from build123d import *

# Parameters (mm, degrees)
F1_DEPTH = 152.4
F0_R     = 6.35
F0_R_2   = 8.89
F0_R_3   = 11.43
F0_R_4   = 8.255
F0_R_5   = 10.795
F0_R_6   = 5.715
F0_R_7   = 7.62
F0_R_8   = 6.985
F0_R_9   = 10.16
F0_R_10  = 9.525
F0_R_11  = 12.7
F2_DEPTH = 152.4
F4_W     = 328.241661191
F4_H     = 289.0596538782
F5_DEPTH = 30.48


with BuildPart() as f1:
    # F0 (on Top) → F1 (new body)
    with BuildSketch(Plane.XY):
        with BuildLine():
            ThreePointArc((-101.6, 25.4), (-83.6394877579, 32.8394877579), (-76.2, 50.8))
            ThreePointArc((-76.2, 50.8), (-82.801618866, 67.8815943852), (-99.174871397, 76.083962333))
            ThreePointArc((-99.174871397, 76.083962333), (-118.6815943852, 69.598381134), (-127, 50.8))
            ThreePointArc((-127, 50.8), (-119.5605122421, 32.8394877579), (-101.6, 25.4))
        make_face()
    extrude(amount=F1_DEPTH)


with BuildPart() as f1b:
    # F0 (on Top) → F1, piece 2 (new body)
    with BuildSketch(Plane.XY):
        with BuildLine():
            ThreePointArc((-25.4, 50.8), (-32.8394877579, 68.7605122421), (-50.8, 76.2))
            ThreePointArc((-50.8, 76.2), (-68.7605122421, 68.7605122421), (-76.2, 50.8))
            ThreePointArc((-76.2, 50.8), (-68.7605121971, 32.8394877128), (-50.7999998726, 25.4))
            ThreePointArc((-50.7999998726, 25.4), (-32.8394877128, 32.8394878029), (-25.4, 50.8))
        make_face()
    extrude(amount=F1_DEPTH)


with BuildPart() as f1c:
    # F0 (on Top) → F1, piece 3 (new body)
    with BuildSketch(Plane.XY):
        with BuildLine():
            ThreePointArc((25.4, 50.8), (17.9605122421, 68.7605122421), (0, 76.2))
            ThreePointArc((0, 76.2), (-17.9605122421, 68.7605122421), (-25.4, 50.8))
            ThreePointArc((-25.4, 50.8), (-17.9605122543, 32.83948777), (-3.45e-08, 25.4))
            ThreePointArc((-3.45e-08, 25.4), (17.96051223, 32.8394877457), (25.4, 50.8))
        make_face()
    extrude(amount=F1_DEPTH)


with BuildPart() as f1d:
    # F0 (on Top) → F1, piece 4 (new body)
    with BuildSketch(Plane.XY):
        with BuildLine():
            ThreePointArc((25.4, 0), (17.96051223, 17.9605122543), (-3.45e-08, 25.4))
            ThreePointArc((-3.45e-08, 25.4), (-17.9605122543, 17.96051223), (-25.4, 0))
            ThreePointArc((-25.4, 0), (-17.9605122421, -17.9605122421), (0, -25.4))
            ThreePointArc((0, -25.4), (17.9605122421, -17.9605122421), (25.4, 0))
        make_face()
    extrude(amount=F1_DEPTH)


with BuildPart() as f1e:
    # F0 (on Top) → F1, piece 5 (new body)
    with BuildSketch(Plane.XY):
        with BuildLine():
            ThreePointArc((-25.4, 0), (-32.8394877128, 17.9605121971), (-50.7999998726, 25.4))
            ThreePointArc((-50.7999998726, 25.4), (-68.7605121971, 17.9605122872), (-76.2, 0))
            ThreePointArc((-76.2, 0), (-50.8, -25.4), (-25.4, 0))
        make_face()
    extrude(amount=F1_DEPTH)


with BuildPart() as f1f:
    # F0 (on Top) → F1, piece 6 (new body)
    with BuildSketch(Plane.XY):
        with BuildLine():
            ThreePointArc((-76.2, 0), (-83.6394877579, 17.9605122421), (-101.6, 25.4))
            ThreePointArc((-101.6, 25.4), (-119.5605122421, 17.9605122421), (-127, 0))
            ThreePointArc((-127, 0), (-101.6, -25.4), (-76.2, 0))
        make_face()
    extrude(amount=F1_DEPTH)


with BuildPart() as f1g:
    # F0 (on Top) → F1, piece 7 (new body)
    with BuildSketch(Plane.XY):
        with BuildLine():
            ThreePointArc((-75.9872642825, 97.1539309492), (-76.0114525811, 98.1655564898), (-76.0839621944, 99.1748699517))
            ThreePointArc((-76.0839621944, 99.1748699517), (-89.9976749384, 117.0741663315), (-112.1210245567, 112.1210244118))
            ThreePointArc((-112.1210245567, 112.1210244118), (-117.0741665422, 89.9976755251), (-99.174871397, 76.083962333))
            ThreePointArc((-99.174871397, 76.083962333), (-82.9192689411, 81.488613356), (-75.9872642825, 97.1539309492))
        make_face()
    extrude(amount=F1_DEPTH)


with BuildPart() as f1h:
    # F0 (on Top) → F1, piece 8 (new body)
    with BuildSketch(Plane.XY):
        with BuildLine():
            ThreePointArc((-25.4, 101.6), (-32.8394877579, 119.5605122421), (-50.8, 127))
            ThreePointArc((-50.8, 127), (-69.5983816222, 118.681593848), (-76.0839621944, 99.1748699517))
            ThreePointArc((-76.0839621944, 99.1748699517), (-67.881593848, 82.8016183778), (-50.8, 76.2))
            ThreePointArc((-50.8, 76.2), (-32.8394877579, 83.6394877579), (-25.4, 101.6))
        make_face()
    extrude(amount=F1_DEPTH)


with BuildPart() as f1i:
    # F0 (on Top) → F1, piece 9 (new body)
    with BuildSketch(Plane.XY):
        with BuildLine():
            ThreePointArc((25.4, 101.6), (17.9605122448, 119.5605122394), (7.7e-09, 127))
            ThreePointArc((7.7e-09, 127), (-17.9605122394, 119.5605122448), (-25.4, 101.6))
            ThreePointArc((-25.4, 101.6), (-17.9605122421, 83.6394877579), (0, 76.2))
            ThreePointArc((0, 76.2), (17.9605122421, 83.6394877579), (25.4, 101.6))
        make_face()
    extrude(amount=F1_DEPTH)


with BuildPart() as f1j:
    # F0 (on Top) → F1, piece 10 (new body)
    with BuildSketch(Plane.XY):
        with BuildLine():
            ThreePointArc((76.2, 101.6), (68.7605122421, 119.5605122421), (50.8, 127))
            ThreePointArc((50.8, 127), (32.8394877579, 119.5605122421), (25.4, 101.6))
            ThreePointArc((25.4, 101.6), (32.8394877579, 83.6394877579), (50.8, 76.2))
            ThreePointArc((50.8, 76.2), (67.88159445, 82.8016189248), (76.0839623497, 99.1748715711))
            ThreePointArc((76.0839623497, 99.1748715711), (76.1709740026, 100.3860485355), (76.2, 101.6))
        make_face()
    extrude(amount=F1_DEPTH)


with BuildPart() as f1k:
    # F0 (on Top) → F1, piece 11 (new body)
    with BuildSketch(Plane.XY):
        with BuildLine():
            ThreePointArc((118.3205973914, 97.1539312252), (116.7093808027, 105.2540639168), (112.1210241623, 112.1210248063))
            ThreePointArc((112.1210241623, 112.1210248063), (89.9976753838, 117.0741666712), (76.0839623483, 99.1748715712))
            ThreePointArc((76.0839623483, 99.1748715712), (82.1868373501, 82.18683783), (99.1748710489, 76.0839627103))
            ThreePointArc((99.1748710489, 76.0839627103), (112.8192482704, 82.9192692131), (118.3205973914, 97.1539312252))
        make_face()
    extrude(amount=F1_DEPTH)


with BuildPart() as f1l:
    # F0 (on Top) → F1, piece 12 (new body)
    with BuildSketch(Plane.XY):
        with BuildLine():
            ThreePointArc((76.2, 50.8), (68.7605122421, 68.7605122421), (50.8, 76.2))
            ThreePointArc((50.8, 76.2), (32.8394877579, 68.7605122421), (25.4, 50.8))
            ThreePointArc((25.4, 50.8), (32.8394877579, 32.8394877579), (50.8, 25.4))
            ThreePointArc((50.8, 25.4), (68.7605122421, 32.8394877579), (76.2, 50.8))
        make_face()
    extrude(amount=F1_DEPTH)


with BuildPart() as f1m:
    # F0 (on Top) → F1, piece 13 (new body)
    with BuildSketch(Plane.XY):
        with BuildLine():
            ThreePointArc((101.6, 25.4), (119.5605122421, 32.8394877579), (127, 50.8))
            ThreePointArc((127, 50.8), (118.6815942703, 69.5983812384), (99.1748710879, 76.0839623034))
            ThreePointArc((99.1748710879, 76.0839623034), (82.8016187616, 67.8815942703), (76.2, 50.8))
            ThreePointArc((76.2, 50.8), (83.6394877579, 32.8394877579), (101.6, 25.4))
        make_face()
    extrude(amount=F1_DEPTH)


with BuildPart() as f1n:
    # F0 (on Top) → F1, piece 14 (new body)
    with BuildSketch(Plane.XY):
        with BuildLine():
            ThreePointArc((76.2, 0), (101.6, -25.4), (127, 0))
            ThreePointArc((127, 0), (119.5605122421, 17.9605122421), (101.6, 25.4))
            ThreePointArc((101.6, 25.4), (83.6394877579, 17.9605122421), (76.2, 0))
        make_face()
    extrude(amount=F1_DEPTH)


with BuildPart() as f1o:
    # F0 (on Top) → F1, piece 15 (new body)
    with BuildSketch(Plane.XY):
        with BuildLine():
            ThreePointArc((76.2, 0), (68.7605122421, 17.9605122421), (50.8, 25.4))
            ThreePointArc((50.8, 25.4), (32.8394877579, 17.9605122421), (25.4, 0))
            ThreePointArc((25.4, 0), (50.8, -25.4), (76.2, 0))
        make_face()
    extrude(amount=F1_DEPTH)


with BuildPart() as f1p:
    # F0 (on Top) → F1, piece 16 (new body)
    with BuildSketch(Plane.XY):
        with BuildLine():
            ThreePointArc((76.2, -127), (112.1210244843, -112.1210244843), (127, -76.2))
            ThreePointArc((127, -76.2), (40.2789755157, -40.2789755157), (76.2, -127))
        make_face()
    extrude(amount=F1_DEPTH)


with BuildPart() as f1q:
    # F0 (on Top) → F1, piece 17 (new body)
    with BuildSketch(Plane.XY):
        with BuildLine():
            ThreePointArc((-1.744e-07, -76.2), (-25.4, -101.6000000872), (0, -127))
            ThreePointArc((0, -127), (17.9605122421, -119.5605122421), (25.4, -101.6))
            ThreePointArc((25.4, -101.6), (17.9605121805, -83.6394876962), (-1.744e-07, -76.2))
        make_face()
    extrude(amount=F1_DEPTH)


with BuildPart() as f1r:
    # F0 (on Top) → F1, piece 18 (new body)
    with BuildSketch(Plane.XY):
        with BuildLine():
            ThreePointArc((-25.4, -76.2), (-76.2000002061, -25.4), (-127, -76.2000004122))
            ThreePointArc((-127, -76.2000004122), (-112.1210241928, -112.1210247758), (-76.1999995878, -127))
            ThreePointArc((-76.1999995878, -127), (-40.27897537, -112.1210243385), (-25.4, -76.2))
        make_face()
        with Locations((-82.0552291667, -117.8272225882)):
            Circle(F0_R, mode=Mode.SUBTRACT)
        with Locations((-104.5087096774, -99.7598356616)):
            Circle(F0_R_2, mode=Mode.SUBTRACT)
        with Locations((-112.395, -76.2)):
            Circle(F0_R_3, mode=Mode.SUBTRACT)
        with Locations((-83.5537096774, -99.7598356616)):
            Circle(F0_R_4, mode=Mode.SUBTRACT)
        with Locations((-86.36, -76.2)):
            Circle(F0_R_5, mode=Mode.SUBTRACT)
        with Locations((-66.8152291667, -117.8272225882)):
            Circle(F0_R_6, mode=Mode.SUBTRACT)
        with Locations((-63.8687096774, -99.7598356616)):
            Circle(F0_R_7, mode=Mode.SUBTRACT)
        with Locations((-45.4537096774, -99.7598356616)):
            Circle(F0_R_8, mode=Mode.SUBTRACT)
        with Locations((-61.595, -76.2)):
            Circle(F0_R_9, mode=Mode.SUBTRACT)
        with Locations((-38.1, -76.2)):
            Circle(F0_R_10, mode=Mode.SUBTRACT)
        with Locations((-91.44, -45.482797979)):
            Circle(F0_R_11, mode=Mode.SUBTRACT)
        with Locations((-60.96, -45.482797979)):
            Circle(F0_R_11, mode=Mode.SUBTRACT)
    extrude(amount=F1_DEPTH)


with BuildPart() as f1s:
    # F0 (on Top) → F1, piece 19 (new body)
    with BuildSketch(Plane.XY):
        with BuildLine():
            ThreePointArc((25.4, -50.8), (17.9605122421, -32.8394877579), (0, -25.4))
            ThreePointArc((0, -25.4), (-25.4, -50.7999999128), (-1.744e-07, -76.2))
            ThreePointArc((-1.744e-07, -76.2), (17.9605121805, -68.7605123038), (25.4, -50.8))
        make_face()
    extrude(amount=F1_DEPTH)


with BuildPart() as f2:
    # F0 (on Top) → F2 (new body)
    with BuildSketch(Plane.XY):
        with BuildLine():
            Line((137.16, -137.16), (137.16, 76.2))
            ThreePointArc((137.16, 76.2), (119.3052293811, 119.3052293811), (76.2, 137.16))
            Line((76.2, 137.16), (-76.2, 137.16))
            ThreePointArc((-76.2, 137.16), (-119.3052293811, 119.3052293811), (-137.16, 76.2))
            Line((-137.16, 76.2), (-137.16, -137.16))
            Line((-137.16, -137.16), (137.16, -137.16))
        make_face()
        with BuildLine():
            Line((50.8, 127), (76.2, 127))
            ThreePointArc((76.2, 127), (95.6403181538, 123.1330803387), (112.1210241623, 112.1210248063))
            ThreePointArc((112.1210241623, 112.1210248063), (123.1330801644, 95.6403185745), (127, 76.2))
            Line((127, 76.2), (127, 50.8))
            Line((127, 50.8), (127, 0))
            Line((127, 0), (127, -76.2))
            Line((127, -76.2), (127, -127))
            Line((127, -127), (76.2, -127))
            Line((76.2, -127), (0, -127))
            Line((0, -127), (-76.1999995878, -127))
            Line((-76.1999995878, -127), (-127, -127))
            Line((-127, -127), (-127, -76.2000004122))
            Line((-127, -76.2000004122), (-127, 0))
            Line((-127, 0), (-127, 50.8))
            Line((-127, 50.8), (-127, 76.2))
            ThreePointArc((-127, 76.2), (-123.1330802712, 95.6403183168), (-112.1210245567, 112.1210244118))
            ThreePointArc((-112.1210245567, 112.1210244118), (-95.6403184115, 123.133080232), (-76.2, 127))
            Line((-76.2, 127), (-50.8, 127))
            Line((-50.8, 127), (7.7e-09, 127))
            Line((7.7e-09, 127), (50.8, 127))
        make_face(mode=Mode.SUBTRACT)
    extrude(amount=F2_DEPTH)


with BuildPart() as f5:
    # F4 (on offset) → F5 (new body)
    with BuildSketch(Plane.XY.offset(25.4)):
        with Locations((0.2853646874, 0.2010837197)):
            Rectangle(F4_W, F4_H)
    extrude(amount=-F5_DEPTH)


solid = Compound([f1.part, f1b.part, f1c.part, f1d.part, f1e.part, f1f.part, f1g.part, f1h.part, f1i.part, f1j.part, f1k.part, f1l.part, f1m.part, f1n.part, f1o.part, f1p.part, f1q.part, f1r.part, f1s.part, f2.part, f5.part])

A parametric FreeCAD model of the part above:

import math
import FreeCAD as App
import Part
import Sketcher
from FreeCAD import Vector
Q = App.Units.Quantity


def add_polygon(sketch, points):
    """Adds a closed chain of lines whose ends are joined by coincident constraints."""
    first, n = sketch.GeometryCount, len(points)
    for a, b in zip(points, points[1:] + points[:1]):
        sketch.addGeometry(Part.LineSegment(App.Vector(*a, 0), App.Vector(*b, 0)), False)
    for i in range(n):
        sketch.addConstraint(Sketcher.Constraint("Coincident", first + i, 2, first + (i + 1) % n, 1))

doc = App.newDocument("Part")
body = doc.addObject("PartDesign::Body", "Body")

# Sketch on XY plane
sketch1 = body.newObject("Sketcher::SketchObject", "Sketch")
sketch1.AttachmentSupport = (doc.getObject("XY_Plane"), [""])
sketch1.MapMode = "FlatFace"
sketch1.addGeometry(Part.ArcOfCircle(Part.Circle(Vector(-102, 51, 0), Vector(0, 0, 1), 25), math.radians(-90), math.radians(0)), False)
sketch1.addGeometry(Part.ArcOfCircle(Part.Circle(Vector(-102, 51, 0), Vector(0, 0, 1), 25), math.radians(0), math.radians(85)), False)
sketch1.addGeometry(Part.ArcOfCircle(Part.Circle(Vector(-102, 51, 0), Vector(0, 0, 1), 25), math.radians(85), math.radians(180)), False)
sketch1.addGeometry(Part.ArcOfCircle(Part.Circle(Vector(-102, 51, 0), Vector(0, 0, 1), 25), math.radians(180), math.radians(270)), False)
sketch1.addConstraint(Sketcher.Constraint("Tangent", 0, 2, 1, 1))
sketch1.addConstraint(Sketcher.Constraint("Tangent", 1, 2, 2, 1))
sketch1.addConstraint(Sketcher.Constraint("Tangent", 2, 2, 3, 1))
sketch1.addConstraint(Sketcher.Constraint("Tangent", 3, 2, 0, 1))
sketch1.addConstraint(Sketcher.Constraint("Equal", 0, 1))
sketch1.addConstraint(Sketcher.Constraint("Horizontal", 3, 3, 0, 2))
sketch1.addConstraint(Sketcher.Constraint("Horizontal", 0, 2, 2, 2))
sketch1.addConstraint(Sketcher.Constraint("Vertical", 2, 3, 3, 2))
sketch1.addConstraint(Sketcher.Constraint("Radius", 0, Q("1 in")))
sketch1.addConstraint(Sketcher.Constraint("DistanceX", 0, 3, -1, 1, Q("4 in")))
sketch1.addConstraint(Sketcher.Constraint("DistanceY", -1, 1, 0, 3, Q("2 in")))
sketch1.addConstraint(Sketcher.Constraint("DistanceX", 1, 2, -1, 1, 99.174871))
pad1 = body.newObject("PartDesign::Pad", "Pad")
pad1.Profile = sketch1
pad1.Length = Q("6 in")
body2 = doc.addObject("PartDesign::Body", "Body001")

# Sketch on XY plane
sketch2 = body2.newObject("Sketcher::SketchObject", "Sketch001")
sketch2.AttachmentSupport = (doc.getObject("XY_Plane001"), [""])
sketch2.MapMode = "FlatFace"
sketch2.addGeometry(Part.ArcOfCircle(Part.Circle(Vector(-51, 51, 0), Vector(0, 0, 1), 25), math.radians(0), math.radians(90)), False)
sketch2.addGeometry(Part.ArcOfCircle(Part.Circle(Vector(-51, 51, 0), Vector(0, 0, 1), 25), math.radians(90), math.radians(180)), False)
sketch2.addGeometry(Part.ArcOfCircle(Part.Circle(Vector(-51, 51, 0), Vector(0, 0, 1), 25), math.radians(180), math.radians(270)), False)
sketch2.addGeometry(Part.ArcOfCircle(Part.Circle(Vector(-51, 51, 0), Vector(0, 0, 1), 25), math.radians(-90), math.radians(0)), False)
sketch2.addConstraint(Sketcher.Constraint("Tangent", 0, 2, 1, 1))
sketch2.addConstraint(Sketcher.Constraint("Tangent", 1, 2, 2, 1))
sketch2.addConstraint(Sketcher.Constraint("Tangent", 2, 2, 3, 1))
sketch2.addConstraint(Sketcher.Constraint("Tangent", 3, 2, 0, 1))
sketch2.addConstraint(Sketcher.Constraint("Equal", 0, 1))
sketch2.addConstraint(Sketcher.Constraint("Horizontal", 3, 3, 1, 2))
sketch2.addConstraint(Sketcher.Constraint("Horizontal", 1, 2, 3, 2))
sketch2.addConstraint(Sketcher.Constraint("Vertical", 3, 3, 0, 2))
sketch2.addConstraint(Sketcher.Constraint("Vertical", 0, 2, 2, 2))
sketch2.addConstraint(Sketcher.Constraint("Radius", 0, Q("1 in")))
sketch2.addConstraint(Sketcher.Constraint("DistanceX", 0, 3, -1, 1, Q("2 in")))
sketch2.addConstraint(Sketcher.Constraint("DistanceY", -1, 1, 0, 3, Q("2 in")))
pad2 = body2.newObject("PartDesign::Pad", "Pad001")
pad2.Profile = sketch2
pad2.Length = Q("6 in")
body3 = doc.addObject("PartDesign::Body", "Body002")

# Sketch on XY plane
sketch3 = body3.newObject("Sketcher::SketchObject", "Sketch002")
sketch3.AttachmentSupport = (doc.getObject("XY_Plane002"), [""])
sketch3.MapMode = "FlatFace"
sketch3.addGeometry(Part.ArcOfCircle(Part.Circle(Vector(0, 51, 0), Vector(0, 0, 1), 25), math.radians(0), math.radians(90)), False)
sketch3.addGeometry(Part.ArcOfCircle(Part.Circle(Vector(0, 51, 0), Vector(0, 0, 1), 25), math.radians(90), math.radians(180)), False)
sketch3.addGeometry(Part.ArcOfCircle(Part.Circle(Vector(0, 51, 0), Vector(0, 0, 1), 25), math.radians(180), math.radians(270)), False)
sketch3.addGeometry(Part.ArcOfCircle(Part.Circle(Vector(0, 51, 0), Vector(0, 0, 1), 25), math.radians(-90), math.radians(0)), False)
sketch3.addConstraint(Sketcher.Constraint("Tangent", 0, 2, 1, 1))
sketch3.addConstraint(Sketcher.Constraint("Tangent", 1, 2, 2, 1))
sketch3.addConstraint(Sketcher.Constraint("Tangent", 2, 2, 3, 1))
sketch3.addConstraint(Sketcher.Constraint("Tangent", 3, 2, 0, 1))
sketch3.addConstraint(Sketcher.Constraint("Equal", 0, 1))
sketch3.addConstraint(Sketcher.Constraint("Symmetric", 1, 2, 3, 2, -2))
sketch3.addConstraint(Sketcher.Constraint("PointOnObject", 0, 2, -2))
sketch3.addConstraint(Sketcher.Constraint("PointOnObject", 2, 2, -2))
sketch3.addConstraint(Sketcher.Constraint("Horizontal", 3, 3, 1, 2))
sketch3.addConstraint(Sketcher.Constraint("Radius", 0, Q("1 in")))
sketch3.addConstraint(Sketcher.Constraint("DistanceY", -1, 1, 0, 3, Q("2 in")))
pad3 = body3.newObject("PartDesign::Pad", "Pad002")
pad3.Profile = sketch3
pad3.Length = Q("6 in")
body4 = doc.addObject("PartDesign::Body", "Body003")

# Sketch on XY plane
sketch4 = body4.newObject("Sketcher::SketchObject", "Sketch003")
sketch4.AttachmentSupport = (doc.getObject("XY_Plane003"), [""])
sketch4.MapMode = "FlatFace"
sketch4.addGeometry(Part.ArcOfCircle(Part.Circle(Vector(0, 0, 0), Vector(0, 0, 1), 25), math.radians(0), math.radians(90)), False)
sketch4.addGeometry(Part.ArcOfCircle(Part.Circle(Vector(0, 0, 0), Vector(0, 0, 1), 25), math.radians(90), math.radians(180)), False)
sketch4.addGeometry(Part.ArcOfCircle(Part.Circle(Vector(0, 0, 0), Vector(0, 0, 1), 25), math.radians(180), math.radians(270)), False)
sketch4.addGeometry(Part.ArcOfCircle(Part.Circle(Vector(0, 0, 0), Vector(0, 0, 1), 25), math.radians(-90), math.radians(0)), False)
sketch4.addConstraint(Sketcher.Constraint("Tangent", 0, 2, 1, 1))
sketch4.addConstraint(Sketcher.Constraint("Tangent", 1, 2, 2, 1))
sketch4.addConstraint(Sketcher.Constraint("Tangent", 2, 2, 3, 1))
sketch4.addConstraint(Sketcher.Constraint("Tangent", 3, 2, 0, 1))
sketch4.addConstraint(Sketcher.Constraint("Coincident", 0, 3, -1, 1))
sketch4.addConstraint(Sketcher.Constraint("Equal", 0, 1))
sketch4.addConstraint(Sketcher.Constraint("PointOnObject", 0, 2, -2))
sketch4.addConstraint(Sketcher.Constraint("PointOnObject", 1, 2, -1))
sketch4.addConstraint(Sketcher.Constraint("PointOnObject", 2, 2, -2))
sketch4.addConstraint(Sketcher.Constraint("PointOnObject", 3, 2, -1))
sketch4.addConstraint(Sketcher.Constraint("Radius", 0, Q("1 in")))
pad4 = body4.newObject("PartDesign::Pad", "Pad003")
pad4.Profile = sketch4
pad4.Length = Q("6 in")
body5 = doc.addObject("PartDesign::Body", "Body004")

# Sketch on XY plane
sketch5 = body5.newObject("Sketcher::SketchObject", "Sketch004")
sketch5.AttachmentSupport = (doc.getObject("XY_Plane004"), [""])
sketch5.MapMode = "FlatFace"
sketch5.addGeometry(Part.ArcOfCircle(Part.Circle(Vector(-51, 0, 0), Vector(0, 0, 1), 25), math.radians(0), math.radians(90)), False)
sketch5.addGeometry(Part.ArcOfCircle(Part.Circle(Vector(-51, 0, 0), Vector(0, 0, 1), 25), math.radians(90), math.radians(180)), False)
sketch5.addGeometry(Part.ArcOfCircle(Part.Circle(Vector(-51, 0, 0), Vector(0, 0, 1), 25), math.radians(180), math.radians(360)), False)
sketch5.addConstraint(Sketcher.Constraint("Tangent", 0, 2, 1, 1))
sketch5.addConstraint(Sketcher.Constraint("Tangent", 1, 2, 2, 1))
sketch5.addConstraint(Sketcher.Constraint("Tangent", 2, 2, 0, 1))
sketch5.addConstraint(Sketcher.Constraint("PointOnObject", 0, 3, -1))
sketch5.addConstraint(Sketcher.Constraint("PointOnObject", 1, 2, -1))
sketch5.addConstraint(Sketcher.Constraint("PointOnObject", 2, 2, -1))
sketch5.addConstraint(Sketcher.Constraint("Vertical", 2, 3, 0, 2))
sketch5.addConstraint(Sketcher.Constraint("Radius", 0, Q("1 in")))
sketch5.addConstraint(Sketcher.Constraint("DistanceX", 0, 3, -1, 1, Q("2 in")))
pad5 = body5.newObject("PartDesign::Pad", "Pad004")
pad5.Profile = sketch5
pad5.Length = Q("6 in")
body6 = doc.addObject("PartDesign::Body", "Body005")

# Sketch on XY plane
sketch6 = body6.newObject("Sketcher::SketchObject", "Sketch005")
sketch6.AttachmentSupport = (doc.getObject("XY_Plane005"), [""])
sketch6.MapMode = "FlatFace"
sketch6.addGeometry(Part.ArcOfCircle(Part.Circle(Vector(-102, 0, 0), Vector(0, 0, 1), 25), math.radians(0), math.radians(90)), False)
sketch6.addGeometry(Part.ArcOfCircle(Part.Circle(Vector(-102, 0, 0), Vector(0, 0, 1), 25), math.radians(90), math.radians(180)), False)
sketch6.addGeometry(Part.ArcOfCircle(Part.Circle(Vector(-102, 0, 0), Vector(0, 0, 1), 25), math.radians(180), math.radians(360)), False)
sketch6.addConstraint(Sketcher.Constraint("Tangent", 0, 2, 1, 1))
sketch6.addConstraint(Sketcher.Constraint("Tangent", 1, 2, 2, 1))
sketch6.addConstraint(Sketcher.Constraint("Tangent", 2, 2, 0, 1))
sketch6.addConstraint(Sketcher.Constraint("PointOnObject", 0, 3, -1))
sketch6.addConstraint(Sketcher.Constraint("PointOnObject", 1, 2, -1))
sketch6.addConstraint(Sketcher.Constraint("PointOnObject", 2, 2, -1))
sketch6.addConstraint(Sketcher.Constraint("Vertical", 2, 3, 0, 2))
sketch6.addConstraint(Sketcher.Constraint("Radius", 0, Q("1 in")))
sketch6.addConstraint(Sketcher.Constraint("DistanceX", 0, 3, -1, 1, Q("4 in")))
pad6 = body6.newObject("PartDesign::Pad", "Pad005")
pad6.Profile = sketch6
pad6.Length = Q("6 in")
body7 = doc.addObject("PartDesign::Body", "Body006")

# Sketch on XY plane
sketch7 = body7.newObject("Sketcher::SketchObject", "Sketch006")
sketch7.AttachmentSupport = (doc.getObject("XY_Plane006"), [""])
sketch7.MapMode = "FlatFace"
sketch7.addGeometry(Part.ArcOfCircle(Part.Circle(Vector(-97.2, 97.2, 0), Vector(0, 0, 1), 21.2), math.radians(0), math.radians(5.48)), False)
sketch7.addGeometry(Part.ArcOfCircle(Part.Circle(Vector(-97.2, 97.2, 0), Vector(0, 0, 1), 21.2), math.radians(5), math.radians(135)), False)
sketch7.addGeometry(Part.ArcOfCircle(Part.Circle(Vector(-97.2, 97.2, 0), Vector(0, 0, 1), 21.2), math.radians(135), math.radians(265)), False)
sketch7.addGeometry(Part.ArcOfCircle(Part.Circle(Vector(-97.2, 97.2, 0), Vector(0, 0, 1), 21.2), math.radians(-95), math.radians(0)), False)
sketch7.addConstraint(Sketcher.Constraint("Tangent", 0, 2, 1, 1))
sketch7.addConstraint(Sketcher.Constraint("Tangent", 1, 2, 2, 1))
sketch7.addConstraint(Sketcher.Constraint("Tangent", 2, 2, 3, 1))
sketch7.addConstraint(Sketcher.Constraint("Tangent", 3, 2, 0, 1))
sketch7.addConstraint(Sketcher.Constraint("Equal", 0, 1))
sketch7.addConstraint(Sketcher.Constraint("Horizontal", 2, 3, 3, 2))
sketch7.addConstraint(Sketcher.Constraint("Radius", 0, 21.166667))
sketch7.addConstraint(Sketcher.Constraint("DistanceX", 0, 3, -1, 1, 97.153931))
sketch7.addConstraint(Sketcher.Constraint("DistanceY", -1, 1, 0, 3, 97.153931))
sketch7.addConstraint(Sketcher.Constraint("DistanceY", -1, 1, 0, 2, 99.17487))
sketch7.addConstraint(Sketcher.Constraint("DistanceX", 2, 2, -1, 1, 99.174871))
sketch7.addConstraint(Sketcher.Constraint("DistanceX", 1, 2, -1, 1, 112.121025))
pad7 = body7.newObject("PartDesign::Pad", "Pad006")
pad7.Profile = sketch7
pad7.Length = Q("6 in")
body8 = doc.addObject("PartDesign::Body", "Body007")

# Sketch on XY plane
sketch8 = body8.newObject("Sketcher::SketchObject", "Sketch007")
sketch8.AttachmentSupport = (doc.getObject("XY_Plane007"), [""])
sketch8.MapMode = "FlatFace"
sketch8.addGeometry(Part.ArcOfCircle(Part.Circle(Vector(-51, 102, 0), Vector(0, 0, 1), 25), math.radians(90), math.radians(185)), False)
sketch8.addGeometry(Part.ArcOfCircle(Part.Circle(Vector(-51, 102, 0), Vector(0, 0, 1), 25), math.radians(-175), math.radians(90)), False)
sketch8.addConstraint(Sketcher.Constraint("Tangent", 0, 1, 1, 2))
sketch8.addConstraint(Sketcher.Constraint("Coincident", 1, 1, 0, 2))
sketch8.addConstraint(Sketcher.Constraint("Vertical", 1, 3, 0, 1))
sketch8.addConstraint(Sketcher.Constraint("Radius", 0, Q("1 in")))
sketch8.addConstraint(Sketcher.Constraint("DistanceX", 0, 3, -1, 1, Q("2 in")))
sketch8.addConstraint(Sketcher.Constraint("DistanceY", -1, 1, 0, 3, Q("4 in")))
sketch8.addConstraint(Sketcher.Constraint("DistanceY", -1, 1, 1, 1, 99.17487))
pad8 = body8.newObject("PartDesign::Pad", "Pad007")
pad8.Profile = sketch8
pad8.Length = Q("6 in")
body9 = doc.addObject("PartDesign::Body", "Body008")

# Sketch on XY plane
sketch9 = body9.newObject("Sketcher::SketchObject", "Sketch008")
sketch9.AttachmentSupport = (doc.getObject("XY_Plane008"), [""])
sketch9.MapMode = "FlatFace"
sketch9.addGeometry(Part.ArcOfCircle(Part.Circle(Vector(0, 102, 0), Vector(0, 0, 1), 25), math.radians(0), math.radians(90)), False)
sketch9.addGeometry(Part.ArcOfCircle(Part.Circle(Vector(0, 102, 0), Vector(0, 0, 1), 25), math.radians(90), math.radians(180)), False)
sketch9.addGeometry(Part.ArcOfCircle(Part.Circle(Vector(0, 102, 0), Vector(0, 0, 1), 25), math.radians(180), math.radians(270)), False)
sketch9.addGeometry(Part.ArcOfCircle(Part.Circle(Vector(0, 102, 0), Vector(0, 0, 1), 25), math.radians(-90), math.radians(0)), False)
sketch9.addConstraint(Sketcher.Constraint("Tangent", 0, 2, 1, 1))
sketch9.addConstraint(Sketcher.Constraint("Tangent", 1, 2, 2, 1))
sketch9.addConstraint(Sketcher.Constraint("Tangent", 2, 2, 3, 1))
sketch9.addConstraint(Sketcher.Constraint("Tangent", 3, 2, 0, 1))
sketch9.addConstraint(Sketcher.Constraint("Equal", 0, 1))
sketch9.addConstraint(Sketcher.Constraint("Symmetric", 1, 2, 3, 2, -2))
sketch9.addConstraint(Sketcher.Constraint("PointOnObject", 0, 2, -2))
sketch9.addConstraint(Sketcher.Constraint("PointOnObject", 2, 2, -2))
sketch9.addConstraint(Sketcher.Constraint("Horizontal", 3, 3, 1, 2))
sketch9.addConstraint(Sketcher.Constraint("Radius", 0, Q("1 in")))
sketch9.addConstraint(Sketcher.Constraint("DistanceY", -1, 1, 0, 3, Q("4 in")))
pad9 = body9.newObject("PartDesign::Pad", "Pad008")
pad9.Profile = sketch9
pad9.Length = Q("6 in")
body10 = doc.addObject("PartDesign::Body", "Body009")

# Sketch on XY plane
sketch10 = body10.newObject("Sketcher::SketchObject", "Sketch009")
sketch10.AttachmentSupport = (doc.getObject("XY_Plane009"), [""])
sketch10.MapMode = "FlatFace"
sketch10.addGeometry(Part.ArcOfCircle(Part.Circle(Vector(50.8, 101.6, 0), Vector(0, 0, 1), 25.4), math.radians(0), math.radians(90)), False)
sketch10.addGeometry(Part.ArcOfCircle(Part.Circle(Vector(50.8, 101.6, 0), Vector(0, 0, 1), 25.4), math.radians(90), math.radians(180)), False)
sketch10.addGeometry(Part.ArcOfCircle(Part.Circle(Vector(50.8, 101.6, 0), Vector(0, 0, 1), 25.4), math.radians(180), math.radians(270)), False)
sketch10.addGeometry(Part.ArcOfCircle(Part.Circle(Vector(50.8, 101.6, 0), Vector(0, 0, 1), 25.4), math.radians(-90), math.radians(-5)), False)
sketch10.addGeometry(Part.ArcOfCircle(Part.Circle(Vector(50.8, 101.6, 0), Vector(0, 0, 1), 25.4), math.radians(-5.48), math.radians(0)), False)
sketch10.addConstraint(Sketcher.Constraint("Tangent", 0, 2, 1, 1))
sketch10.addConstraint(Sketcher.Constraint("Tangent", 1, 2, 2, 1))
sketch10.addConstraint(Sketcher.Constraint("Tangent", 2, 2, 3, 1))
sketch10.addConstraint(Sketcher.Constraint("Tangent", 3, 2, 4, 1))
sketch10.addConstraint(Sketcher.Constraint("Tangent", 4, 2, 0, 1))
sketch10.addConstraint(Sketcher.Constraint("Coincident", 2, 3, 0, 3))
sketch10.addConstraint(Sketcher.Constraint("Horizontal", 4, 3, 1, 2))
sketch10.addConstraint(Sketcher.Constraint("Horizontal", 1, 2, 4, 2))
sketch10.addConstraint(Sketcher.Constraint("Vertical", 4, 3, 0, 2))
sketch10.addConstraint(Sketcher.Constraint("Vertical", 0, 2, 2, 2))
sketch10.addConstraint(Sketcher.Constraint("Radius", 0, Q("1 in")))
sketch10.addConstraint(Sketcher.Constraint("DistanceX", -1, 1, 0, 3, Q("2 in")))
sketch10.addConstraint(Sketcher.Constraint("DistanceY", -1, 1, 0, 3, Q("4 in")))
sketch10.addConstraint(Sketcher.Constraint("DistanceY", -1, 1, 3, 2, 99.174872))
pad10 = body10.newObject("PartDesign::Pad", "Pad009")
pad10.Profile = sketch10
pad10.Length = Q("6 in")
body11 = doc.addObject("PartDesign::Body", "Body010")

# Sketch on XY plane
sketch11 = body11.newObject("Sketcher::SketchObject", "Sketch010")
sketch11.AttachmentSupport = (doc.getObject("XY_Plane010"), [""])
sketch11.MapMode = "FlatFace"
sketch11.addGeometry(Part.ArcOfCircle(Part.Circle(Vector(97, 97, 0), Vector(0, 0, 1), 21), math.radians(0), math.radians(45)), False)
sketch11.addGeometry(Part.ArcOfCircle(Part.Circle(Vector(97, 97, 0), Vector(0, 0, 1), 21), math.radians(45), math.radians(175)), False)
sketch11.addGeometry(Part.ArcOfCircle(Part.Circle(Vector(97, 97, 0), Vector(0, 0, 1), 21), math.radians(175), math.radians(275)), False)
sketch11.addGeometry(Part.ArcOfCircle(Part.Circle(Vector(97, 97, 0), Vector(0, 0, 1), 21), math.radians(-85), math.radians(0)), False)
sketch11.addConstraint(Sketcher.Constraint("Tangent", 0, 2, 1, 1))
sketch11.addConstraint(Sketcher.Constraint("Tangent", 1, 2, 2, 1))
sketch11.addConstraint(Sketcher.Constraint("Tangent", 2, 2, 3, 1))
sketch11.addConstraint(Sketcher.Constraint("Tangent", 3, 2, 0, 1))
sketch11.addConstraint(Sketcher.Constraint("Equal", 0, 1))
sketch11.addConstraint(Sketcher.Constraint("Horizontal", 2, 3, 3, 2))
sketch11.addConstraint(Sketcher.Constraint("Radius", 0, 21.166667))
sketch11.addConstraint(Sketcher.Constraint("DistanceX", -1, 1, 0, 3, 97.153931))
sketch11.addConstraint(Sketcher.Constraint("DistanceY", -1, 1, 0, 3, 97.153931))
sketch11.addConstraint(Sketcher.Constraint("DistanceY", -1, 1, 1, 2, 99.174872))
sketch11.addConstraint(Sketcher.Constraint("DistanceX", -1, 1, 2, 2, 99.174871))
sketch11.addConstraint(Sketcher.Constraint("DistanceX", 1, 2, 0, 2, 36.037062))
pad11 = body11.newObject("PartDesign::Pad", "Pad010")
pad11.Profile = sketch11
pad11.Length = Q("6 in")
body12 = doc.addObject("PartDesign::Body", "Body011")

# Sketch on XY plane
sketch12 = body12.newObject("Sketcher::SketchObject", "Sketch011")
sketch12.AttachmentSupport = (doc.getObject("XY_Plane011"), [""])
sketch12.MapMode = "FlatFace"
sketch12.addGeometry(Part.ArcOfCircle(Part.Circle(Vector(51, 51, 0), Vector(0, 0, 1), 25), math.radians(0), math.radians(90)), False)
sketch12.addGeometry(Part.ArcOfCircle(Part.Circle(Vector(51, 51, 0), Vector(0, 0, 1), 25), math.radians(90), math.radians(180)), False)
sketch12.addGeometry(Part.ArcOfCircle(Part.Circle(Vector(51, 51, 0), Vector(0, 0, 1), 25), math.radians(180), math.radians(270)), False)
sketch12.addGeometry(Part.ArcOfCircle(Part.Circle(Vector(51, 51, 0), Vector(0, 0, 1), 25), math.radians(-90), math.radians(0)), False)
sketch12.addConstraint(Sketcher.Constraint("Tangent", 0, 2, 1, 1))
sketch12.addConstraint(Sketcher.Constraint("Tangent", 1, 2, 2, 1))
sketch12.addConstraint(Sketcher.Constraint("Tangent", 2, 2, 3, 1))
sketch12.addConstraint(Sketcher.Constraint("Tangent", 3, 2, 0, 1))
sketch12.addConstraint(Sketcher.Constraint("Equal", 0, 1))
sketch12.addConstraint(Sketcher.Constraint("Horizontal", 3, 3, 1, 2))
sketch12.addConstraint(Sketcher.Constraint("Horizontal", 1, 2, 3, 2))
sketch12.addConstraint(Sketcher.Constraint("Vertical", 3, 3, 0, 2))
sketch12.addConstraint(Sketcher.Constraint("Vertical", 0, 2, 2, 2))
sketch12.addConstraint(Sketcher.Constraint("Radius", 0, Q("1 in")))
sketch12.addConstraint(Sketcher.Constraint("DistanceX", -1, 1, 0, 3, Q("2 in")))
sketch12.addConstraint(Sketcher.Constraint("DistanceY", -1, 1, 0, 3, Q("2 in")))
pad12 = body12.newObject("PartDesign::Pad", "Pad011")
pad12.Profile = sketch12
pad12.Length = Q("6 in")
body13 = doc.addObject("PartDesign::Body", "Body012")

# Sketch on XY plane
sketch13 = body13.newObject("Sketcher::SketchObject", "Sketch012")
sketch13.AttachmentSupport = (doc.getObject("XY_Plane012"), [""])
sketch13.MapMode = "FlatFace"
sketch13.addGeometry(Part.ArcOfCircle(Part.Circle(Vector(102, 51, 0), Vector(0, 0, 1), 25), math.radians(-90), math.radians(0)), False)
sketch13.addGeometry(Part.ArcOfCircle(Part.Circle(Vector(102, 51, 0), Vector(0, 0, 1), 25), math.radians(0), math.radians(95)), False)
sketch13.addGeometry(Part.ArcOfCircle(Part.Circle(Vector(102, 51, 0), Vector(0, 0, 1), 25), math.radians(95), math.radians(180)), False)
sketch13.addGeometry(Part.ArcOfCircle(Part.Circle(Vector(102, 51, 0), Vector(0, 0, 1), 25), math.radians(180), math.radians(270)), False)
sketch13.addConstraint(Sketcher.Constraint("Tangent", 0, 2, 1, 1))
sketch13.addConstraint(Sketcher.Constraint("Tangent", 1, 2, 2, 1))
sketch13.addConstraint(Sketcher.Constraint("Tangent", 2, 2, 3, 1))
sketch13.addConstraint(Sketcher.Constraint("Tangent", 3, 2, 0, 1))
sketch13.addConstraint(Sketcher.Constraint("Equal", 0, 1))
sketch13.addConstraint(Sketcher.Constraint("Horizontal", 3, 3, 0, 2))
sketch13.addConstraint(Sketcher.Constraint("Horizontal", 0, 2, 2, 2))
sketch13.addConstraint(Sketcher.Constraint("Vertical", 2, 3, 3, 2))
sketch13.addConstraint(Sketcher.Constraint("Radius", 0, Q("1 in")))
sketch13.addConstraint(Sketcher.Constraint("DistanceX", -1, 1, 0, 3, Q("4 in")))
sketch13.addConstraint(Sketcher.Constraint("DistanceY", -1, 1, 0, 3, Q("2 in")))
sketch13.addConstraint(Sketcher.Constraint("DistanceX", -1, 1, 1, 2, 99.174871))
pad13 = body13.newObject("PartDesign::Pad", "Pad012")
pad13.Profile = sketch13
pad13.Length = Q("6 in")
body14 = doc.addObject("PartDesign::Body", "Body013")

# Sketch on XY plane
sketch14 = body14.newObject("Sketcher::SketchObject", "Sketch013")
sketch14.AttachmentSupport = (doc.getObject("XY_Plane013"), [""])
sketch14.MapMode = "FlatFace"
sketch14.addGeometry(Part.ArcOfCircle(Part.Circle(Vector(102, 0, 0), Vector(0, 0, 1), 25), math.radians(180), math.radians(360)), False)
sketch14.addGeometry(Part.ArcOfCircle(Part.Circle(Vector(102, 0, 0), Vector(0, 0, 1), 25), math.radians(0), math.radians(90)), False)
sketch14.addGeometry(Part.ArcOfCircle(Part.Circle(Vector(102, 0, 0), Vector(0, 0, 1), 25), math.radians(90), math.radians(180)), False)
sketch14.addConstraint(Sketcher.Constraint("Tangent", 0, 2, 1, 1))
sketch14.addConstraint(Sketcher.Constraint("Tangent", 1, 2, 2, 1))
sketch14.addConstraint(Sketcher.Constraint("Tangent", 2, 2, 0, 1))
sketch14.addConstraint(Sketcher.Constraint("PointOnObject", 0, 3, -1))
sketch14.addConstraint(Sketcher.Constraint("PointOnObject", 0, 2, -1))
sketch14.addConstraint(Sketcher.Constraint("PointOnObject", 2, 2, -1))
sketch14.addConstraint(Sketcher.Constraint("Vertical", 2, 3, 1, 2))
sketch14.addConstraint(Sketcher.Constraint("Radius", 0, Q("1 in")))
sketch14.addConstraint(Sketcher.Constraint("DistanceX", -1, 1, 0, 3, Q("4 in")))
pad14 = body14.newObject("PartDesign::Pad", "Pad013")
pad14.Profile = sketch14
pad14.Length = Q("6 in")
body15 = doc.addObject("PartDesign::Body", "Body014")

# Sketch on XY plane
sketch15 = body15.newObject("Sketcher::SketchObject", "Sketch014")
sketch15.AttachmentSupport = (doc.getObject("XY_Plane014"), [""])
sketch15.MapMode = "FlatFace"
sketch15.addGeometry(Part.ArcOfCircle(Part.Circle(Vector(51, 0, 0), Vector(0, 0, 1), 25), math.radians(0), math.radians(90)), False)
sketch15.addGeometry(Part.ArcOfCircle(Part.Circle(Vector(51, 0, 0), Vector(0, 0, 1), 25), math.radians(90), math.radians(180)), False)
sketch15.addGeometry(Part.ArcOfCircle(Part.Circle(Vector(51, 0, 0), Vector(0, 0, 1), 25), math.radians(180), math.radians(360)), False)
sketch15.addConstraint(Sketcher.Constraint("Tangent", 0, 2, 1, 1))
sketch15.addConstraint(Sketcher.Constraint("Tangent", 1, 2, 2, 1))
sketch15.addConstraint(Sketcher.Constraint("Tangent", 2, 2, 0, 1))
sketch15.addConstraint(Sketcher.Constraint("PointOnObject", 0, 3, -1))
sketch15.addConstraint(Sketcher.Constraint("PointOnObject", 1, 2, -1))
sketch15.addConstraint(Sketcher.Constraint("PointOnObject", 2, 2, -1))
sketch15.addConstraint(Sketcher.Constraint("Vertical", 2, 3, 0, 2))
sketch15.addConstraint(Sketcher.Constraint("Radius", 0, Q("1 in")))
sketch15.addConstraint(Sketcher.Constraint("DistanceX", -1, 1, 0, 3, Q("2 in")))
pad15 = body15.newObject("PartDesign::Pad", "Pad014")
pad15.Profile = sketch15
pad15.Length = Q("6 in")
body16 = doc.addObject("PartDesign::Body", "Body015")

# Sketch on XY plane
sketch16 = body16.newObject("Sketcher::SketchObject", "Sketch015")
sketch16.AttachmentSupport = (doc.getObject("XY_Plane015"), [""])
sketch16.MapMode = "FlatFace"
sketch16.addGeometry(Part.ArcOfCircle(Part.Circle(Vector(76, -76, 0), Vector(0, 0, 1), 51), math.radians(-90), math.radians(0)), False)
sketch16.addGeometry(Part.ArcOfCircle(Part.Circle(Vector(76, -76, 0), Vector(0, 0, 1), 51), math.radians(0), math.radians(270)), False)
sketch16.addConstraint(Sketcher.Constraint("Tangent", 0, 1, 1, 2))
sketch16.addConstraint(Sketcher.Constraint("Coincident", 1, 1, 0, 2))
sketch16.addConstraint(Sketcher.Constraint("Horizontal", 0, 3, 1, 1))
sketch16.addConstraint(Sketcher.Constraint("Vertical", 1, 3, 0, 1))
sketch16.addConstraint(Sketcher.Constraint("Radius", 0, Q("2 in")))
sketch16.addConstraint(Sketcher.Constraint("DistanceX", -1, 1, 0, 3, Q("3 in")))
sketch16.addConstraint(Sketcher.Constraint("DistanceY", 0, 3, -1, 1, Q("3 in")))
pad16 = body16.newObject("PartDesign::Pad", "Pad015")
pad16.Profile = sketch16
pad16.Length = Q("6 in")
body17 = doc.addObject("PartDesign::Body", "Body016")

# Sketch on XY plane
sketch17 = body17.newObject("Sketcher::SketchObject", "Sketch016")
sketch17.AttachmentSupport = (doc.getObject("XY_Plane016"), [""])
sketch17.MapMode = "FlatFace"
sketch17.addGeometry(Part.ArcOfCircle(Part.Circle(Vector(0, -102, 0), Vector(0, 0, 1), 25), math.radians(90), math.radians(270)), False)
sketch17.addGeometry(Part.ArcOfCircle(Part.Circle(Vector(0, -102, 0), Vector(0, 0, 1), 25), math.radians(-90), math.radians(0)), False)
sketch17.addGeometry(Part.ArcOfCircle(Part.Circle(Vector(0, -102, 0), Vector(0, 0, 1), 25), math.radians(0), math.radians(90)), False)
sketch17.addConstraint(Sketcher.Constraint("Tangent", 0, 2, 1, 1))
sketch17.addConstraint(Sketcher.Constraint("Tangent", 1, 2, 2, 1))
sketch17.addConstraint(Sketcher.Constraint("Tangent", 2, 2, 0, 1))
sketch17.addConstraint(Sketcher.Constraint("PointOnObject", 0, 3, -2))
sketch17.addConstraint(Sketcher.Constraint("PointOnObject", 0, 2, -2))
sketch17.addConstraint(Sketcher.Constraint("PointOnObject", 2, 2, -2))
sketch17.addConstraint(Sketcher.Constraint("Horizontal", 2, 3, 1, 2))
sketch17.addConstraint(Sketcher.Constraint("Radius", 0, Q("1 in")))
sketch17.addConstraint(Sketcher.Constraint("DistanceY", 0, 3, -1, 1, Q("4 in")))
pad17 = body17.newObject("PartDesign::Pad", "Pad016")
pad17.Profile = sketch17
pad17.Length = Q("6 in")
body18 = doc.addObject("PartDesign::Body", "Body017")

# Sketch on XY plane
sketch18 = body18.newObject("Sketcher::SketchObject", "Sketch017")
sketch18.AttachmentSupport = (doc.getObject("XY_Plane017"), [""])
sketch18.MapMode = "FlatFace"
sketch18.addGeometry(Part.ArcOfCircle(Part.Circle(Vector(-76, -76, 0), Vector(0, 0, 1), 51), math.radians(0), math.radians(180)), False)
sketch18.addGeometry(Part.ArcOfCircle(Part.Circle(Vector(-76, -76, 0), Vector(0, 0, 1), 51), math.radians(-180), math.radians(0)), False)
sketch18.addGeometry(Part.Circle(Vector(-82, -118, 0), Vector(0, 0, 1), 6), False)
sketch18.addGeometry(Part.Circle(Vector(-105, -100, 0), Vector(0, 0, 1), 9), False)
sketch18.addGeometry(Part.Circle(Vector(-84, -100, 0), Vector(0, 0, 1), 8), False)
sketch18.addGeometry(Part.Circle(Vector(-67, -118, 0), Vector(0, 0, 1), 6), False)
sketch18.addGeometry(Part.Circle(Vector(-64, -100, 0), Vector(0, 0, 1), 8), False)
sketch18.addGeometry(Part.Circle(Vector(-45, -100, 0), Vector(0, 0, 1), 7), False)
sketch18.addGeometry(Part.Circle(Vector(-112, -76, 0), Vector(0, 0, 1), 11), False)
sketch18.addGeometry(Part.Circle(Vector(-86, -76, 0), Vector(0, 0, 1), 11), False)
sketch18.addGeometry(Part.Circle(Vector(-91, -45, 0), Vector(0, 0, 1), 13), False)
sketch18.addGeometry(Part.Circle(Vector(-62, -76, 0), Vector(0, 0, 1), 10), False)
sketch18.addGeometry(Part.Circle(Vector(-38, -76, 0), Vector(0, 0, 1), 10), False)
sketch18.addGeometry(Part.Circle(Vector(-61, -45, 0), Vector(0, 0, 1), 13), False)
sketch18.addConstraint(Sketcher.Constraint("Tangent", 0, 1, 1, 2))
sketch18.addConstraint(Sketcher.Constraint("Coincident", 1, 1, 0, 2))
sketch18.addConstraint(Sketcher.Constraint("Equal", 10, 13))
sketch18.addConstraint(Sketcher.Constraint("Horizontal", 3, 3, 4, 3))
sketch18.addConstraint(Sketcher.Constraint("Horizontal", 2, 3, 5, 3))
sketch18.addConstraint(Sketcher.Constraint("Horizontal", 4, 3, 6, 3))
sketch18.addConstraint(Sketcher.Constraint("Horizontal", 6, 3, 7, 3))
sketch18.addConstraint(Sketcher.Constraint("Horizontal", 1, 3, 8, 3))
sketch18.addConstraint(Sketcher.Constraint("Horizontal", 8, 3, 9, 3))
sketch18.addConstraint(Sketcher.Constraint("Horizontal", 9, 3, 11, 3))
sketch18.addConstraint(Sketcher.Constraint("Horizontal", 11, 3, 12, 3))
sketch18.addConstraint(Sketcher.Constraint("Horizontal", 10, 3, 13, 3))
sketch18.addConstraint(Sketcher.Constraint("Horizontal", 12, 3, 0, 1))
sketch18.addConstraint(Sketcher.Constraint("Horizontal", 0, 1, 1, 1))
sketch18.addConstraint(Sketcher.Constraint("Diameter", 10, Q("1 in")))
sketch18.addConstraint(Sketcher.Constraint("Radius", 0, Q("2 in")))
sketch18.addConstraint(Sketcher.Constraint("Diameter", 2, Q("0.5 in")))
sketch18.addConstraint(Sketcher.Constraint("Diameter", 3, Q("0.7 in")))
sketch18.addConstraint(Sketcher.Constraint("Diameter", 6, Q("0.6 in")))
sketch18.addConstraint(Sketcher.Constraint("Diameter", 8, Q("0.9 in")))
sketch18.addConstraint(Sketcher.Constraint("Diameter", 11, Q("0.8 in")))
sketch18.addConstraint(Sketcher.Constraint("Diameter", 4, Q("0.65 in")))
sketch18.addConstraint(Sketcher.Constraint("Diameter", 5, Q("0.45 in")))
sketch18.addConstraint(Sketcher.Constraint("Diameter", 7, Q("0.55 in")))
sketch18.addConstraint(Sketcher.Constraint("Diameter", 9, Q("0.85 in")))
sketch18.addConstraint(Sketcher.Constraint("Diameter", 12, Q("0.75 in")))
sketch18.addConstraint(Sketcher.Constraint("DistanceX", 0, 3, -1, 1, Q("3 in")))
sketch18.addConstraint(Sketcher.Constraint("DistanceY", 0, 3, -1, 1, Q("3 in")))
sketch18.addConstraint(Sketcher.Constraint("DistanceX", 9, 3, -1, 1, Q("3.4 in")))
sketch18.addConstraint(Sketcher.Constraint("DistanceX", 10, 3, -1, 1, Q("3.6 in")))
sketch18.addConstraint(Sketcher.Constraint("DistanceX", 12, 3, -1, 1, Q("1.5 in")))
sketch18.addConstraint(Sketcher.Constraint("DistanceX", 13, 3, -1, 1, Q("2.4 in")))
sketch18.addConstraint(Sketcher.Constraint("DistanceX", 2, 3, 5, 3, Q("0.6 in")))
sketch18.addConstraint(Sketcher.Constraint("DistanceX", 4, 3, 7, 3, Q("1.5 in")))
sketch18.addConstraint(Sketcher.Constraint("DistanceX", 8, 3, -1, 1, Q("4.425 in")))
sketch18.addConstraint(Sketcher.Constraint("DistanceX", 11, 3, -1, 1, Q("2.425 in")))
sketch18.addConstraint(Sketcher.Constraint("DistanceX", 3, 3, 4, 3, Q("0.825 in")))
sketch18.addConstraint(Sketcher.Constraint("DistanceX", 4, 3, 6, 3, Q("0.775 in")))
sketch18.addConstraint(Sketcher.Constraint("DistanceX", 2, 3, -1, 1, 82.055229))
sketch18.addConstraint(Sketcher.Constraint("DistanceX", 3, 3, -1, 1, 104.50871))
sketch18.addConstraint(Sketcher.Constraint("DistanceY", 2, 3, -1, 1, 117.827223))
sketch18.addConstraint(Sketcher.Constraint("DistanceY", 3, 3, -1, 1, 99.759836))
sketch18.addConstraint(Sketcher.Constraint("DistanceY", 10, 3, -1, 1, 45.482798))
pad18 = body18.newObject("PartDesign::Pad", "Pad017")
pad18.Profile = sketch18
pad18.Length = Q("6 in")
body19 = doc.addObject("PartDesign::Body", "Body018")

# Sketch on XY plane
sketch19 = body19.newObject("Sketcher::SketchObject", "Sketch018")
sketch19.AttachmentSupport = (doc.getObject("XY_Plane018"), [""])
sketch19.MapMode = "FlatFace"
sketch19.addGeometry(Part.ArcOfCircle(Part.Circle(Vector(0, -51, 0), Vector(0, 0, 1), 25), math.radians(0), math.radians(90)), False)
sketch19.addGeometry(Part.ArcOfCircle(Part.Circle(Vector(0, -51, 0), Vector(0, 0, 1), 25), math.radians(90), math.radians(270)), False)
sketch19.addGeometry(Part.ArcOfCircle(Part.Circle(Vector(0, -51, 0), Vector(0, 0, 1), 25), math.radians(-90), math.radians(0)), False)
sketch19.addConstraint(Sketcher.Constraint("Tangent", 0, 2, 1, 1))
sketch19.addConstraint(Sketcher.Constraint("Tangent", 1, 2, 2, 1))
sketch19.addConstraint(Sketcher.Constraint("Tangent", 2, 2, 0, 1))
sketch19.addConstraint(Sketcher.Constraint("PointOnObject", 0, 3, -2))
sketch19.addConstraint(Sketcher.Constraint("PointOnObject", 0, 2, -2))
sketch19.addConstraint(Sketcher.Constraint("PointOnObject", 1, 2, -2))
sketch19.addConstraint(Sketcher.Constraint("Horizontal", 1, 3, 2, 2))
sketch19.addConstraint(Sketcher.Constraint("Radius", 0, Q("1 in")))
sketch19.addConstraint(Sketcher.Constraint("DistanceY", 0, 3, -1, 1, Q("2 in")))
pad19 = body19.newObject("PartDesign::Pad", "Pad018")
pad19.Profile = sketch19
pad19.Length = Q("6 in")
body20 = doc.addObject("PartDesign::Body", "Body019")

# Sketch on XY plane
sketch20 = body20.newObject("Sketcher::SketchObject", "Sketch019")
sketch20.AttachmentSupport = (doc.getObject("XY_Plane019"), [""])
sketch20.MapMode = "FlatFace"
sketch20.addGeometry(Part.LineSegment(Vector(137, -137, 0), Vector(137, 76, 0)), False)
sketch20.addGeometry(Part.ArcOfCircle(Part.Circle(Vector(76, 76, 0), Vector(0, 0, 1), 61), math.radians(0), math.radians(90)), False)
sketch20.addGeometry(Part.LineSegment(Vector(76, 137, 0), Vector(-76, 137, 0)), False)
sketch20.addGeometry(Part.ArcOfCircle(Part.Circle(Vector(-76, 76, 0), Vector(0, 0, 1), 61), math.radians(90), math.radians(180)), False)
sketch20.addGeometry(Part.LineSegment(Vector(-137, 76, 0), Vector(-137, -137, 0)), False)
sketch20.addGeometry(Part.LineSegment(Vector(-137, -137, 0), Vector(137, -137, 0)), False)
sketch20.addGeometry(Part.LineSegment(Vector(-76, 127, 0), Vector(76, 127, 0)), False)
sketch20.addGeometry(Part.ArcOfCircle(Part.Circle(Vector(76, 76, 0), Vector(0, 0, 1), 51), math.radians(45), math.radians(90)), False)
sketch20.addGeometry(Part.ArcOfCircle(Part.Circle(Vector(76, 76, 0), Vector(0, 0, 1), 51), math.radians(0), math.radians(45)), False)
sketch20.addGeometry(Part.LineSegment(Vector(127, 76, 0), Vector(127, -127, 0)), False)
sketch20.addGeometry(Part.LineSegment(Vector(127, -127, 0), Vector(-127, -127, 0)), False)
sketch20.addGeometry(Part.LineSegment(Vector(-127, -127, 0), Vector(-127, 76, 0)), False)
sketch20.addGeometry(Part.ArcOfCircle(Part.Circle(Vector(-76, 76, 0), Vector(0, 0, 1), 51), math.radians(135), math.radians(180)), False)
sketch20.addGeometry(Part.ArcOfCircle(Part.Circle(Vector(-76, 76, 0), Vector(0, 0, 1), 51), math.radians(90), math.radians(135)), False)
sketch20.addConstraint(Sketcher.Constraint("Tangent", 0, 2, 1, 1))
sketch20.addConstraint(Sketcher.Constraint("Tangent", 1, 2, 2, 1))
sketch20.addConstraint(Sketcher.Constraint("Tangent", 2, 2, 3, 1))
sketch20.addConstraint(Sketcher.Constraint("Tangent", 3, 2, 4, 1))
sketch20.addConstraint(Sketcher.Constraint("Coincident", 4, 2, 5, 1))
sketch20.addConstraint(Sketcher.Constraint("Coincident", 5, 2, 0, 1))
sketch20.addConstraint(Sketcher.Constraint("Tangent", 6, 2, 7, 2))
sketch20.addConstraint(Sketcher.Constraint("Tangent", 7, 1, 8, 2))
sketch20.addConstraint(Sketcher.Constraint("Tangent", 8, 1, 9, 1))
sketch20.addConstraint(Sketcher.Constraint("Coincident", 9, 2, 10, 1))
sketch20.addConstraint(Sketcher.Constraint("Coincident", 10, 2, 11, 1))
sketch20.addConstraint(Sketcher.Constraint("Tangent", 11, 2, 12, 2))
sketch20.addConstraint(Sketcher.Constraint("Tangent", 12, 1, 13, 2))
sketch20.addConstraint(Sketcher.Constraint("Tangent", 13, 1, 6, 1))
sketch20.addConstraint(Sketcher.Constraint("Vertical", 0))
sketch20.addConstraint(Sketcher.Constraint("Horizontal", 2))
sketch20.addConstraint(Sketcher.Constraint("Vertical", 4))
sketch20.addConstraint(Sketcher.Constraint("Horizontal", 5))
sketch20.addConstraint(Sketcher.Constraint("Horizontal", 6))
sketch20.addConstraint(Sketcher.Constraint("Vertical", 9))
sketch20.addConstraint(Sketcher.Constraint("Horizontal", 10))
sketch20.addConstraint(Sketcher.Constraint("Vertical", 11))
sketch20.addConstraint(Sketcher.Constraint("Coincident", 7, 3, 1, 3))
sketch20.addConstraint(Sketcher.Constraint("Coincident", 12, 3, 3, 3))
sketch20.addConstraint(Sketcher.Constraint("Equal", 1, 3))
sketch20.addConstraint(Sketcher.Constraint("Equal", 7, 8))
sketch20.addConstraint(Sketcher.Constraint("Equal", 8, 12))
sketch20.addConstraint(Sketcher.Constraint("Symmetric", 7, 1, 12, 1, -2))
sketch20.addConstraint(Sketcher.Constraint("Radius", 7, Q("2 in")))
sketch20.addConstraint(Sketcher.Constraint("Radius", 1, Q("2.4 in")))
sketch20.addConstraint(Sketcher.Constraint("DistanceX", 2, 2, 2, 1, Q("6 in")))
sketch20.addConstraint(Sketcher.Constraint("DistanceY", 9, 2, 9, 1, Q("8 in")))
sketch20.addConstraint(Sketcher.Constraint("DistanceY", 0, 1, 0, 2, Q("8.4 in")))
sketch20.addConstraint(Sketcher.Constraint("DistanceY", -1, 1, 1, 3, Q("3 in")))
sketch20.addConstraint(Sketcher.Constraint("DistanceX", -1, 1, 7, 1, 112.121024))
pad20 = body20.newObject("PartDesign::Pad", "Pad019")
pad20.Profile = sketch20
pad20.Length = Q("6 in")
body21 = doc.addObject("PartDesign::Body", "Body020")

# Sketch on XY plane
sketch21 = body21.newObject("Sketcher::SketchObject", "Sketch020")
sketch21.AttachmentSupport = (doc.getObject("XY_Plane020"), [""])
sketch21.MapMode = "FlatFace"
sketch21.AttachmentOffset = App.Placement(Vector(0, 0, 1 * 25.4), App.Rotation())
add_polygon(sketch21, [(-164, 145), (-164, -144), (164, -144), (164, 145)])  # lines 0-3
sketch21.addConstraint(Sketcher.Constraint("Vertical", 0))
sketch21.addConstraint(Sketcher.Constraint("Horizontal", 1))
sketch21.addConstraint(Sketcher.Constraint("Vertical", 2))
sketch21.addConstraint(Sketcher.Constraint("Horizontal", 3))
sketch21.addConstraint(Sketcher.Constraint("DistanceX", 1, 1, 1, 2, Q("12.9229 in")))
sketch21.addConstraint(Sketcher.Constraint("DistanceY", 0, 2, 0, 1, 289.059654))
sketch21.addConstraint(Sketcher.Constraint("DistanceY", -1, 1, 2, 2, 144.730911))
sketch21.addConstraint(Sketcher.Constraint("DistanceX", 0, 2, -1, 1, 163.835466))
pad21 = body21.newObject("PartDesign::Pad", "Pad020")
pad21.Profile = sketch21
pad21.Length = Q("1.2 in")
pad21.Reversed = True

doc.recompute()
